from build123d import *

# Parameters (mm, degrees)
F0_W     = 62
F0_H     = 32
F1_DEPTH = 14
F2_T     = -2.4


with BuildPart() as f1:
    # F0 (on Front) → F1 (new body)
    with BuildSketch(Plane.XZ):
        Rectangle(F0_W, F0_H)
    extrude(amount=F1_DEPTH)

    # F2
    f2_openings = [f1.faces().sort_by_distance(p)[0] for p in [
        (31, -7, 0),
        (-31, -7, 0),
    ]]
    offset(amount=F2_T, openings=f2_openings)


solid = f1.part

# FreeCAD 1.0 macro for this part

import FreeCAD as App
import Part
import Sketcher
from FreeCAD import Vector
Q = App.Units.Quantity


def faces_at(feature, points):
    """Names of the faces that lie closest to the given points."""
    faces = feature.Shape.Faces
    near = lambda p: min(range(len(faces)), key=lambda i: faces[i].distToShape(Part.Vertex(*p))[0])
    return sorted({f"Face{near(p) + 1}" for p in points})

doc = App.newDocument("Part")
body = doc.addObject("PartDesign::Body", "Body")

# Sketch on XZ plane
sketch1 = doc.addObject("Sketcher::SketchObject", "Sketch")
body.addObject(sketch1)
sketch1.AttachmentSupport = (doc.XZ_Plane, [""])
sketch1.MapMode = "FlatFace"
sketch1.addGeometry(Part.LineSegment(Vector(-31, 16, 0), Vector(-31, -16, 0)), False)
sketch1.addGeometry(Part.LineSegment(Vector(-31, -16, 0), Vector(31, -16, 0)), False)
sketch1.addGeometry(Part.LineSegment(Vector(31, -16, 0), Vector(31, 16, 0)), False)
sketch1.addGeometry(Part.LineSegment(Vector(31, 16, 0), Vector(-31, 16, 0)), False)
sketch1.addConstraint(Sketcher.Constraint("Coincident", 0, 2, 1, 1))
sketch1.addConstraint(Sketcher.Constraint("Coincident", 1, 2, 2, 1))
sketch1.addConstraint(Sketcher.Constraint("Coincident", 2, 2, 3, 1))
sketch1.addConstraint(Sketcher.Constraint("Coincident", 3, 2, 0, 1))
sketch1.addConstraint(Sketcher.Constraint("Vertical", 0))
sketch1.addConstraint(Sketcher.Constraint("Horizontal", 1))
sketch1.addConstraint(Sketcher.Constraint("Vertical", 2))
sketch1.addConstraint(Sketcher.Constraint("Horizontal", 3))
sketch1.addConstraint(Sketcher.Constraint("Symmetric", 0, 2, 2, 2, -1, 1))
sketch1.addConstraint(Sketcher.Constraint("DistanceX", 1, 1, 1, 2, Q("62 mm")))
sketch1.addConstraint(Sketcher.Constraint("DistanceY", 0, 2, 0, 1, Q("32 mm")))
pad1 = doc.addObject("PartDesign::Pad", "Pad")
body.addObject(pad1)
pad1.Profile = sketch1
pad1.Length = 14
doc.recompute()

thickness = doc.addObject("PartDesign::Thickness", "Thickness")
body.addObject(thickness)
thickness.Base = (pad1, faces_at(pad1, [(31, -7, 0), (-31, -7, 0)]))
thickness.Value = 2.4
thickness.Reversed = True
thickness.Join = "Arc"

doc.recompute()
